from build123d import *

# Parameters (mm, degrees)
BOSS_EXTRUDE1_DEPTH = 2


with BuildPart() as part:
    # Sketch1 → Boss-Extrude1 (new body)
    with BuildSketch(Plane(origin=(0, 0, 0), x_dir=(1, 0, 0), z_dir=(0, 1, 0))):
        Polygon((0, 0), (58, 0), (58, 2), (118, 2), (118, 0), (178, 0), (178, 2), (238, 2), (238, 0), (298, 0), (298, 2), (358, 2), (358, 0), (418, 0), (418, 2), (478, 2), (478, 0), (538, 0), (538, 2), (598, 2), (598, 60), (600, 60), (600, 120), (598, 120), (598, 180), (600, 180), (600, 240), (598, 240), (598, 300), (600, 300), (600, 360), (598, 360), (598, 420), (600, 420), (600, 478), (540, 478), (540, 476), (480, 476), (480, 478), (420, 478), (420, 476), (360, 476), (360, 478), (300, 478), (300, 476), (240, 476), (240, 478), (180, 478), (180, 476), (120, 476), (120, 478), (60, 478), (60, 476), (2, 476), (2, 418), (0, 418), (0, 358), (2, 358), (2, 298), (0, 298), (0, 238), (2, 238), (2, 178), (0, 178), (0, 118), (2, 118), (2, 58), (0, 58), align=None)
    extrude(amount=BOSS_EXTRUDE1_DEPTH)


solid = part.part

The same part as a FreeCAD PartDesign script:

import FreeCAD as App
import Part
import Sketcher

V = App.Vector

doc = App.newDocument("Part")
body = doc.addObject("PartDesign::Body", "Body")

sketch1 = doc.addObject("Sketcher::SketchObject", "Sketch")
body.addObject(sketch1)
sketch1.AttachmentSupport = (doc.XZ_Plane, [""])
sketch1.MapMode = "FlatFace"
sketch1.addGeometry([
    Part.LineSegment(V(0, 0, 0), V(58, 0, 0)),
    Part.LineSegment(V(58, 0, 0), V(58, -2, 0)),
    Part.LineSegment(V(58, -2, 0), V(118, -2, 0)),
    Part.LineSegment(V(118, -2, 0), V(118, 0, 0)),
    Part.LineSegment(V(118, 0, 0), V(178, 0, 0)),
    Part.LineSegment(V(178, 0, 0), V(178, -2, 0)),
    Part.LineSegment(V(178, -2, 0), V(238, -2, 0)),
    Part.LineSegment(V(238, -2, 0), V(238, 0, 0)),
    Part.LineSegment(V(238, 0, 0), V(298, 0, 0)),
    Part.LineSegment(V(298, 0, 0), V(298, -2, 0)),
    Part.LineSegment(V(298, -2, 0), V(358, -2, 0)),
    Part.LineSegment(V(358, -2, 0), V(358, 0, 0)),
    Part.LineSegment(V(358, 0, 0), V(418, 0, 0)),
    Part.LineSegment(V(418, 0, 0), V(418, -2, 0)),
    Part.LineSegment(V(418, -2, 0), V(478, -2, 0)),
    Part.LineSegment(V(478, -2, 0), V(478, 0, 0)),
    Part.LineSegment(V(478, 0, 0), V(538, 0, 0)),
    Part.LineSegment(V(538, 0, 0), V(538, -2, 0)),
    Part.LineSegment(V(538, -2, 0), V(598, -2, 0)),
    Part.LineSegment(V(598, -2, 0), V(598, -60, 0)),
    Part.LineSegment(V(598, -60, 0), V(600, -60, 0)),
    Part.LineSegment(V(600, -60, 0), V(600, -120, 0)),
    Part.LineSegment(V(600, -120, 0), V(598, -120, 0)),
    Part.LineSegment(V(598, -120, 0), V(598, -180, 0)),
    Part.LineSegment(V(598, -180, 0), V(600, -180, 0)),
    Part.LineSegment(V(600, -180, 0), V(600, -240, 0)),
    Part.LineSegment(V(600, -240, 0), V(598, -240, 0)),
    Part.LineSegment(V(598, -240, 0), V(598, -300, 0)),
    Part.LineSegment(V(598, -300, 0), V(600, -300, 0)),
    Part.LineSegment(V(600, -300, 0), V(600, -360, 0)),
    Part.LineSegment(V(600, -360, 0), V(598, -360, 0)),
    Part.LineSegment(V(598, -360, 0), V(598, -420, 0)),
    Part.LineSegment(V(598, -420, 0), V(600, -420, 0)),
    Part.LineSegment(V(600, -420, 0), V(600, -478, 0)),
    Part.LineSegment(V(600, -478, 0), V(540, -478, 0)),
    Part.LineSegment(V(540, -478, 0), V(540, -476, 0)),
    Part.LineSegment(V(540, -476, 0), V(480, -476, 0)),
    Part.LineSegment(V(480, -476, 0), V(480, -478, 0)),
    Part.LineSegment(V(480, -478, 0), V(420, -478, 0)),
    Part.LineSegment(V(420, -478, 0), V(420, -476, 0)),
    Part.LineSegment(V(420, -476, 0), V(360, -476, 0)),
    Part.LineSegment(V(360, -476, 0), V(360, -478, 0)),
    Part.LineSegment(V(360, -478, 0), V(300, -478, 0)),
    Part.LineSegment(V(300, -478, 0), V(300, -476, 0)),
    Part.LineSegment(V(300, -476, 0), V(240, -476, 0)),
    Part.LineSegment(V(240, -476, 0), V(240, -478, 0)),
    Part.LineSegment(V(240, -478, 0), V(180, -478, 0)),
    Part.LineSegment(V(180, -478, 0), V(180, -476, 0)),
    Part.LineSegment(V(180, -476, 0), V(120, -476, 0)),
    Part.LineSegment(V(120, -476, 0), V(120, -478, 0)),
    Part.LineSegment(V(120, -478, 0), V(60, -478, 0)),
    Part.LineSegment(V(60, -478, 0), V(60, -476, 0)),
    Part.LineSegment(V(60, -476, 0), V(2, -476, 0)),
    Part.LineSegment(V(2, -476, 0), V(2, -418, 0)),
    Part.LineSegment(V(2, -418, 0), V(0, -418, 0)),
    Part.LineSegment(V(0, -418, 0), V(0, -358, 0)),
    Part.LineSegment(V(0, -358, 0), V(2, -358, 0)),
    Part.LineSegment(V(2, -358, 0), V(2, -298, 0)),
    Part.LineSegment(V(2, -298, 0), V(0, -298, 0)),
    Part.LineSegment(V(0, -298, 0), V(0, -238, 0)),
    Part.LineSegment(V(0, -238, 0), V(2, -238, 0)),
    Part.LineSegment(V(2, -238, 0), V(2, -178, 0)),
    Part.LineSegment(V(2, -178, 0), V(0, -178, 0)),
    Part.LineSegment(V(0, -178, 0), V(0, -118, 0)),
    Part.LineSegment(V(0, -118, 0), V(2, -118, 0)),
    Part.LineSegment(V(2, -118, 0), V(2, -58, 0)),
    Part.LineSegment(V(2, -58, 0), V(0, -58, 0)),
    Part.LineSegment(V(0, -58, 0), V(0, 0, 0)),
], False)
sketch1.addConstraint([
    Sketcher.Constraint("Coincident", 0, 2, 1, 1),
    Sketcher.Constraint("Coincident", 1, 2, 2, 1),
    Sketcher.Constraint("Coincident", 2, 2, 3, 1),
    Sketcher.Constraint("Coincident", 3, 2, 4, 1),
    Sketcher.Constraint("Coincident", 4, 2, 5, 1),
    Sketcher.Constraint("Coincident", 5, 2, 6, 1),
    Sketcher.Constraint("Coincident", 6, 2, 7, 1),
    Sketcher.Constraint("Coincident", 7, 2, 8, 1),
    Sketcher.Constraint("Coincident", 8, 2, 9, 1),
    Sketcher.Constraint("Coincident", 9, 2, 10, 1),
    Sketcher.Constraint("Coincident", 10, 2, 11, 1),
    Sketcher.Constraint("Coincident", 11, 2, 12, 1),
    Sketcher.Constraint("Coincident", 12, 2, 13, 1),
    Sketcher.Constraint("Coincident", 13, 2, 14, 1),
    Sketcher.Constraint("Coincident", 14, 2, 15, 1),
    Sketcher.Constraint("Coincident", 15, 2, 16, 1),
    Sketcher.Constraint("Coincident", 16, 2, 17, 1),
    Sketcher.Constraint("Coincident", 17, 2, 18, 1),
    Sketcher.Constraint("Coincident", 18, 2, 19, 1),
    Sketcher.Constraint("Coincident", 19, 2, 20, 1),
    Sketcher.Constraint("Coincident", 20, 2, 21, 1),
    Sketcher.Constraint("Coincident", 21, 2, 22, 1),
    Sketcher.Constraint("Coincident", 22, 2, 23, 1),
    Sketcher.Constraint("Coincident", 23, 2, 24, 1),
    Sketcher.Constraint("Coincident", 24, 2, 25, 1),
    Sketcher.Constraint("Coincident", 25, 2, 26, 1),
    Sketcher.Constraint("Coincident", 26, 2, 27, 1),
    Sketcher.Constraint("Coincident", 27, 2, 28, 1),
    Sketcher.Constraint("Coincident", 28, 2, 29, 1),
    Sketcher.Constraint("Coincident", 29, 2, 30, 1),
    Sketcher.Constraint("Coincident", 30, 2, 31, 1),
    Sketcher.Constraint("Coincident", 31, 2, 32, 1),
    Sketcher.Constraint("Coincident", 32, 2, 33, 1),
    Sketcher.Constraint("Coincident", 33, 2, 34, 1),
    Sketcher.Constraint("Coincident", 34, 2, 35, 1),
    Sketcher.Constraint("Coincident", 35, 2, 36, 1),
    Sketcher.Constraint("Coincident", 36, 2, 37, 1),
    Sketcher.Constraint("Coincident", 37, 2, 38, 1),
    Sketcher.Constraint("Coincident", 38, 2, 39, 1),
    Sketcher.Constraint("Coincident", 39, 2, 40, 1),
    Sketcher.Constraint("Coincident", 40, 2, 41, 1),
    Sketcher.Constraint("Coincident", 41, 2, 42, 1),
    Sketcher.Constraint("Coincident", 42, 2, 43, 1),
    Sketcher.Constraint("Coincident", 43, 2, 44, 1),
    Sketcher.Constraint("Coincident", 44, 2, 45, 1),
    Sketcher.Constraint("Coincident", 45, 2, 46, 1),
    Sketcher.Constraint("Coincident", 46, 2, 47, 1),
    Sketcher.Constraint("Coincident", 47, 2, 48, 1),
    Sketcher.Constraint("Coincident", 48, 2, 49, 1),
    Sketcher.Constraint("Coincident", 49, 2, 50, 1),
    Sketcher.Constraint("Coincident", 50, 2, 51, 1),
    Sketcher.Constraint("Coincident", 51, 2, 52, 1),
    Sketcher.Constraint("Coincident", 52, 2, 53, 1),
    Sketcher.Constraint("Coincident", 53, 2, 54, 1),
    Sketcher.Constraint("Coincident", 54, 2, 55, 1),
    Sketcher.Constraint("Coincident", 55, 2, 56, 1),
    Sketcher.Constraint("Coincident", 56, 2, 57, 1),
    Sketcher.Constraint("Coincident", 57, 2, 58, 1),
    Sketcher.Constraint("Coincident", 58, 2, 59, 1),
    Sketcher.Constraint("Coincident", 59, 2, 60, 1),
    Sketcher.Constraint("Coincident", 60, 2, 61, 1),
    Sketcher.Constraint("Coincident", 61, 2, 62, 1),
    Sketcher.Constraint("Coincident", 62, 2, 63, 1),
    Sketcher.Constraint("Coincident", 63, 2, 64, 1),
    Sketcher.Constraint("Coincident", 64, 2, 65, 1),
    Sketcher.Constraint("Coincident", 65, 2, 66, 1),
    Sketcher.Constraint("Coincident", 66, 2, 67, 1),
    Sketcher.Constraint("Coincident", 67, 2, 0, 1),
    Sketcher.Constraint("Horizontal", 0),
    Sketcher.Constraint("Vertical", 1),
    Sketcher.Constraint("Horizontal", 2),
    Sketcher.Constraint("Vertical", 3),
    Sketcher.Constraint("Horizontal", 4),
    Sketcher.Constraint("Vertical", 5),
    Sketcher.Constraint("Horizontal", 6),
    Sketcher.Constraint("Vertical", 7),
    Sketcher.Constraint("Horizontal", 8),
    Sketcher.Constraint("Vertical", 9),
    Sketcher.Constraint("Horizontal", 10),
    Sketcher.Constraint("Vertical", 11),
    Sketcher.Constraint("Horizontal", 12),
    Sketcher.Constraint("Vertical", 13),
    Sketcher.Constraint("Horizontal", 14),
    Sketcher.Constraint("Vertical", 15),
    Sketcher.Constraint("Horizontal", 16),
    Sketcher.Constraint("Vertical", 17),
    Sketcher.Constraint("Horizontal", 18),
    Sketcher.Constraint("Vertical", 19),
    Sketcher.Constraint("Horizontal", 20),
    Sketcher.Constraint("Vertical", 21),
    Sketcher.Constraint("Horizontal", 22),
    Sketcher.Constraint("Vertical", 23),
    Sketcher.Constraint("Horizontal", 24),
    Sketcher.Constraint("Vertical", 25),
    Sketcher.Constraint("Horizontal", 26),
    Sketcher.Constraint("Vertical", 27),
    Sketcher.Constraint("Horizontal", 28),
    Sketcher.Constraint("Vertical", 29),
    Sketcher.Constraint("Horizontal", 30),
    Sketcher.Constraint("Vertical", 31),
    Sketcher.Constraint("Horizontal", 32),
    Sketcher.Constraint("Vertical", 33),
    Sketcher.Constraint("Horizontal", 34),
    Sketcher.Constraint("Vertical", 35),
    Sketcher.Constraint("Horizontal", 36),
    Sketcher.Constraint("Vertical", 37),
    Sketcher.Constraint("Horizontal", 38),
    Sketcher.Constraint("Vertical", 39),
    Sketcher.Constraint("Horizontal", 40),
    Sketcher.Constraint("Vertical", 41),
    Sketcher.Constraint("Horizontal", 42),
    Sketcher.Constraint("Vertical", 43),
    Sketcher.Constraint("Horizontal", 44),
    Sketcher.Constraint("Vertical", 45),
    Sketcher.Constraint("Horizontal", 46),
    Sketcher.Constraint("Vertical", 47),
    Sketcher.Constraint("Horizontal", 48),
    Sketcher.Constraint("Vertical", 49),
    Sketcher.Constraint("Horizontal", 50),
    Sketcher.Constraint("Vertical", 51),
    Sketcher.Constraint("Horizontal", 52),
    Sketcher.Constraint("Vertical", 53),
    Sketcher.Constraint("Horizontal", 54),
    Sketcher.Constraint("Vertical", 55),
    Sketcher.Constraint("Horizontal", 56),
    Sketcher.Constraint("Vertical", 57),
    Sketcher.Constraint("Horizontal", 58),
    Sketcher.Constraint("Vertical", 59),
    Sketcher.Constraint("Horizontal", 60),
    Sketcher.Constraint("Vertical", 61),
    Sketcher.Constraint("Horizontal", 62),
    Sketcher.Constraint("Vertical", 63),
    Sketcher.Constraint("Horizontal", 64),
    Sketcher.Constraint("Vertical", 65),
    Sketcher.Constraint("Horizontal", 66),
    Sketcher.Constraint("Vertical", 67),
    Sketcher.Constraint("Coincident", 67, 2, -1, 1),
    Sketcher.Constraint("PointOnObject", 3, 2, -1),
    Sketcher.Constraint("PointOnObject", 7, 2, -1),
    Sketcher.Constraint("PointOnObject", 11, 2, -1),
    Sketcher.Constraint("PointOnObject", 15, 2, -1),
    Sketcher.Constraint("PointOnObject", 54, 2, -2),
    Sketcher.Constraint("PointOnObject", 58, 2, -2),
    Sketcher.Constraint("PointOnObject", 62, 2, -2),
    Sketcher.Constraint("Horizontal", 2, 2, 5, 2),
    Sketcher.Constraint("Horizontal", 6, 2, 9, 2),
    Sketcher.Constraint("Horizontal", 10, 2, 13, 2),
    Sketcher.Constraint("Horizontal", 14, 2, 17, 2),
    Sketcher.Constraint("Horizontal", 34, 2, 37, 2),
    Sketcher.Constraint("Horizontal", 36, 2, 39, 2),
    Sketcher.Constraint("Horizontal", 38, 2, 41, 2),
    Sketcher.Constraint("Horizontal", 40, 2, 43, 2),
    Sketcher.Constraint("Horizontal", 42, 2, 45, 2),
    Sketcher.Constraint("Horizontal", 44, 2, 47, 2),
    Sketcher.Constraint("Horizontal", 46, 2, 49, 2),
    Sketcher.Constraint("Horizontal", 48, 2, 51, 2),
    Sketcher.Constraint("Vertical", 19, 2, 22, 2),
    Sketcher.Constraint("Vertical", 21, 2, 24, 2),
    Sketcher.Constraint("Vertical", 23, 2, 26, 2),
    Sketcher.Constraint("Vertical", 25, 2, 28, 2),
    Sketcher.Constraint("Vertical", 27, 2, 30, 2),
    Sketcher.Constraint("Vertical", 29, 2, 32, 2),
    Sketcher.Constraint("Vertical", 53, 2, 56, 2),
    Sketcher.Constraint("Vertical", 57, 2, 60, 2),
    Sketcher.Constraint("Vertical", 61, 2, 64, 2),
    Sketcher.Constraint("Equal", 2, 4),
    Sketcher.Constraint("Equal", 4, 6),
    Sketcher.Constraint("Equal", 6, 8),
    Sketcher.Constraint("Equal", 8, 10),
    Sketcher.Constraint("Equal", 10, 12),
    Sketcher.Constraint("Equal", 12, 14),
    Sketcher.Constraint("Equal", 14, 16),
    Sketcher.Constraint("Equal", 16, 18),
    Sketcher.Constraint("Equal", 18, 34),
    Sketcher.Constraint("Equal", 34, 36),
    Sketcher.Constraint("Equal", 36, 38),
    Sketcher.Constraint("Equal", 38, 40),
    Sketcher.Constraint("Equal", 40, 42),
    Sketcher.Constraint("Equal", 42, 44),
    Sketcher.Constraint("Equal", 44, 46),
    Sketcher.Constraint("Equal", 46, 48),
    Sketcher.Constraint("Equal", 48, 50),
    Sketcher.Constraint("Equal", 0, 52),
    Sketcher.Constraint("Equal", 66, 1),
    Sketcher.Constraint("Equal", 52, 19),
    Sketcher.Constraint("Equal", 50, 21),
    Sketcher.Constraint("Equal", 21, 23),
    Sketcher.Constraint("Equal", 23, 25),
    Sketcher.Constraint("Equal", 25, 27),
    Sketcher.Constraint("Equal", 27, 29),
    Sketcher.Constraint("Equal", 29, 31),
    Sketcher.Constraint("Equal", 19, 33),
    Sketcher.Constraint("Equal", 17, 35),
    Sketcher.Constraint("Equal", 33, 53),
    Sketcher.Constraint("Equal", 31, 55),
    Sketcher.Constraint("Equal", 55, 57),
    Sketcher.Constraint("Equal", 57, 59),
    Sketcher.Constraint("Equal", 59, 61),
    Sketcher.Constraint("Equal", 61, 63),
    Sketcher.Constraint("Equal", 63, 65),
    Sketcher.Constraint("DistanceX", 0, 1, 0, 2, 58.0),
    Sketcher.Constraint("DistanceX", 2, 1, 2, 2, 60.0),
    Sketcher.Constraint("DistanceX", 20, 1, 20, 2, 2.0),
])
pad1 = doc.addObject("PartDesign::Pad", "Pad")
body.addObject(pad1)
pad1.Profile = sketch1
pad1.Length = 2
pad1.Reversed = True

doc.recompute()
